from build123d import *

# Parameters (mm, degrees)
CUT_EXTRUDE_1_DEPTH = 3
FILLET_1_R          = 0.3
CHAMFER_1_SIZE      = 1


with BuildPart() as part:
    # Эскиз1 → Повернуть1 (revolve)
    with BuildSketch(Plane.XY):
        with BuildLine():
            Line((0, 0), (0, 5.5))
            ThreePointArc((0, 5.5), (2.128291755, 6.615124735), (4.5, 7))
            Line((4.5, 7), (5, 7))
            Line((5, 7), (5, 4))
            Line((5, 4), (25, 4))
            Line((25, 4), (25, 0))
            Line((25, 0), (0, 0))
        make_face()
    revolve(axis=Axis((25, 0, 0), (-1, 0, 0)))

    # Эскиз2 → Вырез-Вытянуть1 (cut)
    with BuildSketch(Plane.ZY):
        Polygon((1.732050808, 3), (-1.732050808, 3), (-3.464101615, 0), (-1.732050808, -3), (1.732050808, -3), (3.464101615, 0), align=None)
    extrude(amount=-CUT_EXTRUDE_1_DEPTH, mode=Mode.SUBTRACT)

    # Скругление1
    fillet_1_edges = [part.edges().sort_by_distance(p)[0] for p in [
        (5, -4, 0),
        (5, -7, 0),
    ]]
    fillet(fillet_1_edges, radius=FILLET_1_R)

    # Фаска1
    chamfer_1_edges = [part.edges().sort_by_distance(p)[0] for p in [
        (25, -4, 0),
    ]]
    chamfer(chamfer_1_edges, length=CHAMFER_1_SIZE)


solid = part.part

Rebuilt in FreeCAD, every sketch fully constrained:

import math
import FreeCAD as App
import Part
import Sketcher
Q = App.Units.Quantity


def edges_at(feature, points):
    """Names of the edges that pass closest to the given points."""
    edges = feature.Shape.Edges
    near = lambda p: min(range(len(edges)), key=lambda i: edges[i].distToShape(Part.Vertex(*p))[0])
    return sorted({f"Edge{near(p) + 1}" for p in points})

doc = App.newDocument("Part")
params = doc.addObject("Spreadsheet::Sheet", "Params")
for row, (alias, value) in enumerate([
    ("sketch1_radius", "7.5 mm"),
    ("sketch1_width", "25 mm"),
    ("sketch1_width2", "20 mm"),
    ("sketch1_height", "4 mm"),
    ("sketch1_height2", "3 mm"),
    ("revolution_angle", "360 deg"),
    ("pocket1_length", "3 mm"),
    ("fillet_radius", "0.3 mm"),
    ("chamfer_size", "1 mm"),
], start=1):
    params.set(f"A{row}", alias)
    params.set(f"B{row}", "=" + value)
    params.setAlias(f"B{row}", alias)

body = doc.addObject("PartDesign::Body", "Body")

sketch1 = body.newObject("Sketcher::SketchObject", "Sketch")
sketch1.AttachmentSupport = (doc.getObject("XY_Plane"), [""])
sketch1.MapMode = "FlatFace"
sketch1.addGeometry(Part.LineSegment(App.Vector(0, 5.5, 0), App.Vector(0, 0, 0)), False)
sketch1.addGeometry(Part.LineSegment(App.Vector(0, 0, 0), App.Vector(25, 0, 0)), False)
sketch1.addGeometry(Part.LineSegment(App.Vector(25, 0, 0), App.Vector(25, 4, 0)), False)
sketch1.addGeometry(Part.LineSegment(App.Vector(25, 4, 0), App.Vector(5, 4, 0)), False)
sketch1.addGeometry(Part.LineSegment(App.Vector(5, 4, 0), App.Vector(5, 7, 0)), False)
sketch1.addGeometry(Part.LineSegment(App.Vector(5, 7, 0), App.Vector(4.5, 7, 0)), False)
sketch1.addGeometry(Part.ArcOfCircle(Part.Circle(App.Vector(4.5, -0.5, 0), App.Vector(0, 0, 1), 7.5), math.radians(90), math.radians(127)), False)
sketch1.addConstraint(Sketcher.Constraint("Coincident", 0, 2, 1, 1))
sketch1.addConstraint(Sketcher.Constraint("Coincident", 1, 2, 2, 1))
sketch1.addConstraint(Sketcher.Constraint("Coincident", 2, 2, 3, 1))
sketch1.addConstraint(Sketcher.Constraint("Coincident", 3, 2, 4, 1))
sketch1.addConstraint(Sketcher.Constraint("Coincident", 4, 2, 5, 1))
sketch1.addConstraint(Sketcher.Constraint("Tangent", 5, 2, 6, 1))
sketch1.addConstraint(Sketcher.Constraint("Coincident", 6, 2, 0, 1))
sketch1.addConstraint(Sketcher.Constraint("Vertical", 0))
sketch1.addConstraint(Sketcher.Constraint("Horizontal", 1))
sketch1.addConstraint(Sketcher.Constraint("Vertical", 2))
sketch1.addConstraint(Sketcher.Constraint("Horizontal", 3))
sketch1.addConstraint(Sketcher.Constraint("Vertical", 4))
sketch1.addConstraint(Sketcher.Constraint("Horizontal", 5))
sketch1.addConstraint(Sketcher.Constraint("Coincident", 0, 2, -1, 1))
sketch1.addConstraint(Sketcher.Constraint("Radius", 6, Q("7.5 mm")))
sketch1.addConstraint(Sketcher.Constraint("DistanceX", 1, 1, 1, 2, Q("25 mm")))
sketch1.addConstraint(Sketcher.Constraint("DistanceX", 3, 2, 3, 1, Q("20 mm")))
sketch1.addConstraint(Sketcher.Constraint("DistanceY", 2, 1, 2, 2, Q("4 mm")))
sketch1.addConstraint(Sketcher.Constraint("DistanceY", 4, 1, 4, 2, Q("3 mm")))
sketch1.addConstraint(Sketcher.Constraint("DistanceX", 5, 2, 5, 1, Q("0.5 mm")))
sketch1.setExpression("Constraints[14]", "Params.sketch1_radius")
sketch1.setExpression("Constraints[15]", "Params.sketch1_width")
sketch1.setExpression("Constraints[16]", "Params.sketch1_width2")
sketch1.setExpression("Constraints[17]", "Params.sketch1_height")
sketch1.setExpression("Constraints[18]", "Params.sketch1_height2")
revolution = body.newObject("PartDesign::Revolution", "Revolution")
revolution.Profile = sketch1
revolution.ReferenceAxis = (sketch1, ["H_Axis"])
revolution.setExpression("Angle", "Params.revolution_angle")

sketch2 = body.newObject("Sketcher::SketchObject", "Sketch001")
sketch2.AttachmentSupport = (doc.getObject("YZ_Plane"), [""])
sketch2.MapMode = "FlatFace"
sketch2.addGeometry(Part.LineSegment(App.Vector(3, 1.7, 0), App.Vector(3, -1.7, 0)), False)
sketch2.addGeometry(Part.LineSegment(App.Vector(3, -1.7, 0), App.Vector(0, -3.5, 0)), False)
sketch2.addGeometry(Part.LineSegment(App.Vector(0, -3.5, 0), App.Vector(-3, -1.7, 0)), False)
sketch2.addGeometry(Part.LineSegment(App.Vector(-3, -1.7, 0), App.Vector(-3, 1.7, 0)), False)
sketch2.addGeometry(Part.LineSegment(App.Vector(-3, 1.7, 0), App.Vector(0, 3.5, 0)), False)
sketch2.addGeometry(Part.LineSegment(App.Vector(0, 3.5, 0), App.Vector(3, 1.7, 0)), False)
sketch2.addConstraint(Sketcher.Constraint("Coincident", 0, 2, 1, 1))
sketch2.addConstraint(Sketcher.Constraint("Coincident", 1, 2, 2, 1))
sketch2.addConstraint(Sketcher.Constraint("Coincident", 2, 2, 3, 1))
sketch2.addConstraint(Sketcher.Constraint("Coincident", 3, 2, 4, 1))
sketch2.addConstraint(Sketcher.Constraint("Coincident", 4, 2, 5, 1))
sketch2.addConstraint(Sketcher.Constraint("Coincident", 5, 2, 0, 1))
sketch2.addConstraint(Sketcher.Constraint("Vertical", 0))
sketch2.addConstraint(Sketcher.Constraint("Vertical", 3))
sketch2.addConstraint(Sketcher.Constraint("Symmetric", 0, 2, 3, 2, -1, 1))
sketch2.addConstraint(Sketcher.Constraint("Symmetric", 1, 2, 4, 2, -1, 1))
sketch2.addConstraint(Sketcher.Constraint("PointOnObject", 1, 2, -2))
sketch2.addConstraint(Sketcher.Constraint("Parallel", 2, 5))
sketch2.addConstraint(Sketcher.Constraint("Horizontal", 0, 2, 2, 2))
sketch2.addConstraint(Sketcher.Constraint("Angle", 1, Q("-150 deg")))
sketch2.addConstraint(Sketcher.Constraint("DistanceX", -1, 1, 0, 2, Q("3 mm")))
sketch2.addConstraint(Sketcher.Constraint("DistanceY", 0, 2, 0, 1, Q("3.464102 mm")))
pocket1 = body.newObject("PartDesign::Pocket", "Pocket")
pocket1.Profile = sketch2
pocket1.setExpression("Length", "Params.pocket1_length")
pocket1.Reversed = True
doc.recompute()

fillet = body.newObject("PartDesign::Fillet", "Fillet")
fillet.Base = (pocket1, edges_at(pocket1, [(5, -4, 0), (5, -7, 0)]))
fillet.setExpression("Radius", "Params.fillet_radius")
doc.recompute()

chamfer = body.newObject("PartDesign::Chamfer", "Chamfer")
chamfer.Base = (fillet, edges_at(fillet, [(25, -4, 0)]))
chamfer.setExpression("Size", "Params.chamfer_size")

doc.recompute()
